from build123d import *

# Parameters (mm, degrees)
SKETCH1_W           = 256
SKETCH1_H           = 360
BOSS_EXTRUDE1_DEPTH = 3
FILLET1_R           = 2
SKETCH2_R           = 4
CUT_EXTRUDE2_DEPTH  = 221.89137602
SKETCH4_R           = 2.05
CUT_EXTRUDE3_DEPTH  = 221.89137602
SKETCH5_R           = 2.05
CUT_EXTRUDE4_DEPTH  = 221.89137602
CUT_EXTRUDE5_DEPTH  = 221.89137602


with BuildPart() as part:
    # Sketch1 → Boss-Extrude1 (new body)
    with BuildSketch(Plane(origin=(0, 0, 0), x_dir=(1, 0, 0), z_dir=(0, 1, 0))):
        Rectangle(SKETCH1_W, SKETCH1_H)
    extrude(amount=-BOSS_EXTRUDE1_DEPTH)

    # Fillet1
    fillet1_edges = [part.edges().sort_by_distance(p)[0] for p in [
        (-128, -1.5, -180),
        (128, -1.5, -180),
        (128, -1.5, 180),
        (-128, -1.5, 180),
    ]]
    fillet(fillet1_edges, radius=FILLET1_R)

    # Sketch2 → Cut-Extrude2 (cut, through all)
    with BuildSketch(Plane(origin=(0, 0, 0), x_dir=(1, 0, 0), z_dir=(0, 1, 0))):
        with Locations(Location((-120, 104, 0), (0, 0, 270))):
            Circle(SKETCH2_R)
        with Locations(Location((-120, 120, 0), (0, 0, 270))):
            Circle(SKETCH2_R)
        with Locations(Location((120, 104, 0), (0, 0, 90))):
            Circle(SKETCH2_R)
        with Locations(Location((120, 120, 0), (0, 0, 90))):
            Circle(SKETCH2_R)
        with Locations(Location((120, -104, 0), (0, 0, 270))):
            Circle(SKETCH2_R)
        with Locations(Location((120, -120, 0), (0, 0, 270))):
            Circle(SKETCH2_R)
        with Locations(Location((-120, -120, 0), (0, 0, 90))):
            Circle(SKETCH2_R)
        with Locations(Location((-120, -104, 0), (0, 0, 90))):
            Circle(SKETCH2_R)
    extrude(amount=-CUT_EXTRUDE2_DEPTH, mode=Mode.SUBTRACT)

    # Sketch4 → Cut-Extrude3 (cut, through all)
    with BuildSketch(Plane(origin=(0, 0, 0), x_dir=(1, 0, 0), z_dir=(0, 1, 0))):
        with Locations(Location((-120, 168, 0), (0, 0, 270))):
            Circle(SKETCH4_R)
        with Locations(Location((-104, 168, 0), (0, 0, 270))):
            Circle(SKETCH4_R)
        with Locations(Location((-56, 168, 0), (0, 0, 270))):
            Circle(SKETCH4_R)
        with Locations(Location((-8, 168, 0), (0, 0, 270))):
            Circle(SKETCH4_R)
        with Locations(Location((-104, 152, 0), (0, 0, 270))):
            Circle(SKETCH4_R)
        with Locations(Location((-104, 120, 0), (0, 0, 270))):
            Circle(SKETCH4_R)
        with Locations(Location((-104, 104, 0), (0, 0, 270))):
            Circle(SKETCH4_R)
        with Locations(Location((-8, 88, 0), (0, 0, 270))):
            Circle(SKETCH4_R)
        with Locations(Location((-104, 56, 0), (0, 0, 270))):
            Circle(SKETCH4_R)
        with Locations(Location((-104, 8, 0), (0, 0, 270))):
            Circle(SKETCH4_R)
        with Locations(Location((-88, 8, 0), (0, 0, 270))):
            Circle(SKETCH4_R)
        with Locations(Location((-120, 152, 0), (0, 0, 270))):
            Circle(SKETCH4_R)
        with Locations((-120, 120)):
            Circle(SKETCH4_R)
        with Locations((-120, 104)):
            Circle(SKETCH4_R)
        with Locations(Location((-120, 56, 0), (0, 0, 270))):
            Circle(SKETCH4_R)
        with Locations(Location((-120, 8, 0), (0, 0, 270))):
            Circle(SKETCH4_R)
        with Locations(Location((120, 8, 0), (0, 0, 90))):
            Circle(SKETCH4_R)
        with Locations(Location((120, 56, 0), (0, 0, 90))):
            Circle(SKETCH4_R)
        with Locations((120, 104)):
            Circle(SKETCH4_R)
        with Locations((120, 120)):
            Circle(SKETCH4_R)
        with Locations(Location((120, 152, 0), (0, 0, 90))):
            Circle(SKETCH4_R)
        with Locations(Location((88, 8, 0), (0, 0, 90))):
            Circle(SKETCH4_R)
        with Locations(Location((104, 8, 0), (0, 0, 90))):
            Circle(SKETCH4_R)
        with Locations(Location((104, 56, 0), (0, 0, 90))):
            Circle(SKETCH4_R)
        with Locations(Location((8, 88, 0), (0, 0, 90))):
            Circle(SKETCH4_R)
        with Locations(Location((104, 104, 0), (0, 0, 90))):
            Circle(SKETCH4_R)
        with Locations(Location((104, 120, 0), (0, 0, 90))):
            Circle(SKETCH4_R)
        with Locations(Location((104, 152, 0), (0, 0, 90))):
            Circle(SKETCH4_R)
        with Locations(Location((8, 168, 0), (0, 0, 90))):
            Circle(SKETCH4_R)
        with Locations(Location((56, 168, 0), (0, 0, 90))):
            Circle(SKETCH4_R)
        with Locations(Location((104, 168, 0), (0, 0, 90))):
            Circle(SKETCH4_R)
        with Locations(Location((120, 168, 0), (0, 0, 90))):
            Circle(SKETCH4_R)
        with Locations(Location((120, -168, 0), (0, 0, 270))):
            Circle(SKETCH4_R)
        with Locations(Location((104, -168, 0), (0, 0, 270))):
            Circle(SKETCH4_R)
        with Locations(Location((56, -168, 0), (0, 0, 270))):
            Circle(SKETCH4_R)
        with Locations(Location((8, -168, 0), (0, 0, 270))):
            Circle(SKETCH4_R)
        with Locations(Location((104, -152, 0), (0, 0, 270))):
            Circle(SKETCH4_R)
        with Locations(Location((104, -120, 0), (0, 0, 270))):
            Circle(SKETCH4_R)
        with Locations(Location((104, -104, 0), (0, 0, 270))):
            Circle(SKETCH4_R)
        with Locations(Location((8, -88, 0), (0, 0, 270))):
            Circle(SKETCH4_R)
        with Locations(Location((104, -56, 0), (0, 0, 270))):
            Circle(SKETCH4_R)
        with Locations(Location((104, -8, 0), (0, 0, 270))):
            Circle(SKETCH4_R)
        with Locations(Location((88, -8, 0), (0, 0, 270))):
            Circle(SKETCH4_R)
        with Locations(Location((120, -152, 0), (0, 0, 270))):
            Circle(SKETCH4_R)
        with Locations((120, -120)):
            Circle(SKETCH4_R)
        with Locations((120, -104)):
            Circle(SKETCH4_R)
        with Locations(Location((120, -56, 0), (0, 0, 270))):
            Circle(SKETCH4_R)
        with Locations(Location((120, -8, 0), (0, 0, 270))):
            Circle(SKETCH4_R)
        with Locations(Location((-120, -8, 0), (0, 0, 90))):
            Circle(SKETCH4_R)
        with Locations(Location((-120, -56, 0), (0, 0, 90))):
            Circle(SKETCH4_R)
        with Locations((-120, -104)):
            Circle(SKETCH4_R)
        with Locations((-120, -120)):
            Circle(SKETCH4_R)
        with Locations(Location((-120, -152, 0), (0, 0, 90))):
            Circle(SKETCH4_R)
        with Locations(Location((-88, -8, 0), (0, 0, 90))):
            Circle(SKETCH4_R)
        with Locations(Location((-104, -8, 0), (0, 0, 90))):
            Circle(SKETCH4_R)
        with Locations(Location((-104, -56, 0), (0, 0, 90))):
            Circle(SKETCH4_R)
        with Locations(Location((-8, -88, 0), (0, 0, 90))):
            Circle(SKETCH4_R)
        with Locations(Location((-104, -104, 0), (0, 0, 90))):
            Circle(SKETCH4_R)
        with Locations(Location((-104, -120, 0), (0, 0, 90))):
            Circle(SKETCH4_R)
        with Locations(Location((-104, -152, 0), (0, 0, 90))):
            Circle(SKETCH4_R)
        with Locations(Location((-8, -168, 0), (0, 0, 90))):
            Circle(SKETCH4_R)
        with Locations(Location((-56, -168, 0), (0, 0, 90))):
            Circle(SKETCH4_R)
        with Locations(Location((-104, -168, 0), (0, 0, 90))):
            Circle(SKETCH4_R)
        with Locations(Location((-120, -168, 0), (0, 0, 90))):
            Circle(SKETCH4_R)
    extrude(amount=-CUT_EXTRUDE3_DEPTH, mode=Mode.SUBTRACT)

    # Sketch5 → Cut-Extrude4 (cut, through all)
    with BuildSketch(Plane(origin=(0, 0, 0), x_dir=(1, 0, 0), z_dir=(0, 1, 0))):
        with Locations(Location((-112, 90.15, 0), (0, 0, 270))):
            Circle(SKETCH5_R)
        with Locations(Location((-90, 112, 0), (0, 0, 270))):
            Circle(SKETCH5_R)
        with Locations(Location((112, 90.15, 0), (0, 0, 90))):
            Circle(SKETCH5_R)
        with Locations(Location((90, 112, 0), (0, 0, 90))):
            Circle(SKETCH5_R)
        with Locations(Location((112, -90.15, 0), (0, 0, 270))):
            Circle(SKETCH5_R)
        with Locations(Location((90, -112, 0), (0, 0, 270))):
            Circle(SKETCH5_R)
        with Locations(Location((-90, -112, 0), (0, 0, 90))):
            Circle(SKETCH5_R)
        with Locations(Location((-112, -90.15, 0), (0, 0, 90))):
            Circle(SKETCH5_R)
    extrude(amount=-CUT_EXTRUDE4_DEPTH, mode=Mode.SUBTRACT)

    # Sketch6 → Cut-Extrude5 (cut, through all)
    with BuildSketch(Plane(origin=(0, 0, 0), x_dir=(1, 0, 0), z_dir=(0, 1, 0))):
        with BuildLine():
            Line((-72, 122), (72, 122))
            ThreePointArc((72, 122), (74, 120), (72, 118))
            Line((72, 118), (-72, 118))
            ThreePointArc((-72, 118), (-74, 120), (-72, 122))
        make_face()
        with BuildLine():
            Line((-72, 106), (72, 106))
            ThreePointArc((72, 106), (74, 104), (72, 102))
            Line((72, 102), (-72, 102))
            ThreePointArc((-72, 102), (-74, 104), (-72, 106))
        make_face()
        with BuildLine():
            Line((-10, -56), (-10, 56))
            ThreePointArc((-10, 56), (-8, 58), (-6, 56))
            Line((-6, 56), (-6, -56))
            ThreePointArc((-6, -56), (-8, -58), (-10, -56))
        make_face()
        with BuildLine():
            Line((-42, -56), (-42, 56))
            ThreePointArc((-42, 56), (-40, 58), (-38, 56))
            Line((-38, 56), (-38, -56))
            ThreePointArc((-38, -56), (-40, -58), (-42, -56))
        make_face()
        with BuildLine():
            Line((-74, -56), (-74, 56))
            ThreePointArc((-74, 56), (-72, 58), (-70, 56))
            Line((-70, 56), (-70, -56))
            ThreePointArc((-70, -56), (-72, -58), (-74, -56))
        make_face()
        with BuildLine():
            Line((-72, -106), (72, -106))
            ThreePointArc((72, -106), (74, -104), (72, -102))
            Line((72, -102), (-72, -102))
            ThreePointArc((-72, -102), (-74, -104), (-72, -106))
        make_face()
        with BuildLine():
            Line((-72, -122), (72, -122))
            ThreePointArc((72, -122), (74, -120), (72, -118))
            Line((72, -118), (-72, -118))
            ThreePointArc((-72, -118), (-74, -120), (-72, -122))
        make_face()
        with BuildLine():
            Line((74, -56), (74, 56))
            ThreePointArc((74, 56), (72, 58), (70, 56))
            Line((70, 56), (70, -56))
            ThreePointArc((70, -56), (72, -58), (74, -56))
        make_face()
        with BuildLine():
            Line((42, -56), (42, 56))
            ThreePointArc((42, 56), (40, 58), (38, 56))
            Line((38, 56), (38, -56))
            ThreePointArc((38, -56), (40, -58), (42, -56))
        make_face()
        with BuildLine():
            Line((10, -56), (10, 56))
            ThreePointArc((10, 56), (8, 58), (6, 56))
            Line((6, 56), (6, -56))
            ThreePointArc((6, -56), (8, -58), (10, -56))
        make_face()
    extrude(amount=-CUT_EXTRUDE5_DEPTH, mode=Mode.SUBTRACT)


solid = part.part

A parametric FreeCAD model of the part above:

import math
import FreeCAD as App
import Part
import Sketcher

V = App.Vector


def edges_at(feature, points):
    """Names of the edges that pass closest to the given points."""
    edges = feature.Shape.Edges
    near = lambda p: min(range(len(edges)), key=lambda i: edges[i].distToShape(Part.Vertex(*p))[0])
    return sorted({f"Edge{near(p) + 1}" for p in points})


def add_polygon(sketch, points):
    """Adds a closed chain of lines whose ends are joined by coincident constraints."""
    first, n = sketch.GeometryCount, len(points)
    for a, b in zip(points, points[1:] + points[:1]):
        sketch.addGeometry(Part.LineSegment(App.Vector(*a, 0), App.Vector(*b, 0)), False)
    for i in range(n):
        sketch.addConstraint(Sketcher.Constraint("Coincident", first + i, 2, first + (i + 1) % n, 1))

doc = App.newDocument("Part")
params = doc.addObject("Spreadsheet::Sheet", "Params")
for row, (alias, value) in enumerate([
    ("sketch1_width", "256 mm"),
    ("sketch1_height", "360 mm"),
    ("pad1_length", "3 mm"),
    ("fillet_radius", "2 mm"),
    ("sketch2_diameter", "8 mm"),
    ("sketch3_diameter", "4.1 mm"),
    ("sketch4_diameter", "4.1 mm"),
    ("sketch5_radius", "2 mm"),
    ("sketch5_width", "144 mm"),
    ("sketch5_height", "112 mm"),
], start=1):
    params.set(f"A{row}", alias)
    params.set(f"B{row}", "=" + value)
    params.setAlias(f"B{row}", alias)

body = doc.addObject("PartDesign::Body", "Body")

# Sketch on XZ plane
sketch1 = body.newObject("Sketcher::SketchObject", "Sketch")
sketch1.AttachmentSupport = (doc.getObject("XZ_Plane"), [""])
sketch1.MapMode = "FlatFace"
add_polygon(sketch1, [(-128, -180), (-128, 180), (128, 180), (128, -180)])  # lines 0-3
sketch1.addConstraint([
    Sketcher.Constraint("Vertical", 0),
    Sketcher.Constraint("Horizontal", 1),
    Sketcher.Constraint("Vertical", 2),
    Sketcher.Constraint("Horizontal", 3),
    Sketcher.Constraint("Symmetric", 0, 2, 2, 2, -1, 1),
    Sketcher.Constraint("DistanceX", 1, 1, 1, 2, 256.0),
    Sketcher.Constraint("DistanceY", 0, 1, 0, 2, 360.0),
])
sketch1.setExpression("Constraints[9]", "Params.sketch1_width")
sketch1.setExpression("Constraints[10]", "Params.sketch1_height")
pad1 = body.newObject("PartDesign::Pad", "Pad")
pad1.Profile = sketch1
pad1.setExpression("Length", "Params.pad1_length")
doc.recompute()

fillet = body.newObject("PartDesign::Fillet", "Fillet")
fillet.Base = (pad1, edges_at(pad1, [
    (-128, -1.5, -180),
    (128, -1.5, -180),
    (128, -1.5, 180),
    (-128, -1.5, 180),
]))
fillet.setExpression("Radius", "Params.fillet_radius")

# Sketch on XZ plane
sketch2 = body.newObject("Sketcher::SketchObject", "Sketch001")
sketch2.AttachmentSupport = (doc.getObject("XZ_Plane"), [""])
sketch2.MapMode = "FlatFace"
sketch2.addGeometry([
    Part.Circle(V(-120, -104, 0), V(0, 0, 1), 4),  # 0
    Part.Circle(V(-120, -120, 0), V(0, 0, 1), 4),  # 1
    Part.Circle(V(120, -104, 0), V(0, 0, 1), 4),  # 2
    Part.Circle(V(120, -120, 0), V(0, 0, 1), 4),  # 3
    Part.Circle(V(120, 104, 0), V(0, 0, 1), 4),  # 4
    Part.Circle(V(120, 120, 0), V(0, 0, 1), 4),  # 5
    Part.Circle(V(-120, 120, 0), V(0, 0, 1), 4),  # 6
    Part.Circle(V(-120, 104, 0), V(0, 0, 1), 4),  # 7
], False)
sketch2.addConstraint([
    Sketcher.Constraint("Equal", 0, 1),
    Sketcher.Constraint("Equal", 1, 2),
    Sketcher.Constraint("Equal", 2, 3),
    Sketcher.Constraint("Equal", 3, 4),
    Sketcher.Constraint("Equal", 4, 5),
    Sketcher.Constraint("Equal", 5, 6),
    Sketcher.Constraint("Equal", 6, 7),
    Sketcher.Constraint("Symmetric", 0, 3, 4, 3, -1, 1),
    Sketcher.Constraint("Symmetric", 1, 3, 5, 3, -1, 1),
    Sketcher.Constraint("Symmetric", 3, 3, 6, 3, -1, 1),
    Sketcher.Constraint("Symmetric", 2, 3, 7, 3, -1, 1),
    Sketcher.Constraint("Symmetric", 0, 3, 2, 3, -2),
    Sketcher.Constraint("Symmetric", 1, 3, 3, 3, -2),
    Sketcher.Constraint("Vertical", 0, 3, 1, 3),
    Sketcher.Constraint("Diameter", 0, 8.0),
    Sketcher.Constraint("DistanceX", 0, 3, -1, 1, 120.0),
    Sketcher.Constraint("DistanceY", 0, 3, -1, 1, 104.0),
    Sketcher.Constraint("DistanceY", 1, 3, -1, 1, 120.0),
])
sketch2.setExpression("Constraints[14]", "Params.sketch2_diameter")
pocket1 = body.newObject("PartDesign::Pocket", "Pocket")
pocket1.Profile = sketch2
pocket1.Type = "ThroughAll"
pocket1.Reversed = True

# Sketch on XZ plane
sketch3 = body.newObject("Sketcher::SketchObject", "Sketch002")
sketch3.AttachmentSupport = (doc.getObject("XZ_Plane"), [""])
sketch3.MapMode = "FlatFace"
sketch3.addGeometry([
    Part.Circle(V(-120, -168, 0), V(0, 0, 1), 2.05),  # 0
    Part.Circle(V(-104, -168, 0), V(0, 0, 1), 2.05),  # 1
    Part.Circle(V(-56, -168, 0), V(0, 0, 1), 2.05),  # 2
    Part.Circle(V(-8, -168, 0), V(0, 0, 1), 2.05),  # 3
    Part.Circle(V(-104, -152, 0), V(0, 0, 1), 2.05),  # 4
    Part.Circle(V(-104, -120, 0), V(0, 0, 1), 2.05),  # 5
    Part.Circle(V(-104, -104, 0), V(0, 0, 1), 2.05),  # 6
    Part.Circle(V(-8, -88, 0), V(0, 0, 1), 2.05),  # 7
    Part.Circle(V(-104, -56, 0), V(0, 0, 1), 2.05),  # 8
    Part.Circle(V(-104, -8, 0), V(0, 0, 1), 2.05),  # 9
    Part.Circle(V(-88, -8, 0), V(0, 0, 1), 2.05),  # 10
    Part.Circle(V(-120, -152, 0), V(0, 0, 1), 2.05),  # 11
    Part.Circle(V(-120, -120, 0), V(0, 0, 1), 2.05),  # 12
    Part.Circle(V(-120, -104, 0), V(0, 0, 1), 2.05),  # 13
    Part.Circle(V(-120, -56, 0), V(0, 0, 1), 2.05),  # 14
    Part.Circle(V(-120, -8, 0), V(0, 0, 1), 2.05),  # 15
    Part.Circle(V(120, -8, 0), V(0, 0, 1), 2.05),  # 16
    Part.Circle(V(120, -56, 0), V(0, 0, 1), 2.05),  # 17
    Part.Circle(V(120, -104, 0), V(0, 0, 1), 2.05),  # 18
    Part.Circle(V(120, -120, 0), V(0, 0, 1), 2.05),  # 19
    Part.Circle(V(120, -152, 0), V(0, 0, 1), 2.05),  # 20
    Part.Circle(V(88, -8, 0), V(0, 0, 1), 2.05),  # 21
    Part.Circle(V(104, -8, 0), V(0, 0, 1), 2.05),  # 22
    Part.Circle(V(104, -56, 0), V(0, 0, 1), 2.05),  # 23
    Part.Circle(V(8, -88, 0), V(0, 0, 1), 2.05),  # 24
    Part.Circle(V(104, -104, 0), V(0, 0, 1), 2.05),  # 25
    Part.Circle(V(104, -120, 0), V(0, 0, 1), 2.05),  # 26
    Part.Circle(V(104, -152, 0), V(0, 0, 1), 2.05),  # 27
    Part.Circle(V(8, -168, 0), V(0, 0, 1), 2.05),  # 28
    Part.Circle(V(56, -168, 0), V(0, 0, 1), 2.05),  # 29
    Part.Circle(V(104, -168, 0), V(0, 0, 1), 2.05),  # 30
    Part.Circle(V(120, -168, 0), V(0, 0, 1), 2.05),  # 31
    Part.Circle(V(120, 168, 0), V(0, 0, 1), 2.05),  # 32
    Part.Circle(V(104, 168, 0), V(0, 0, 1), 2.05),  # 33
    Part.Circle(V(56, 168, 0), V(0, 0, 1), 2.05),  # 34
    Part.Circle(V(8, 168, 0), V(0, 0, 1), 2.05),  # 35
    Part.Circle(V(104, 152, 0), V(0, 0, 1), 2.05),  # 36
    Part.Circle(V(104, 120, 0), V(0, 0, 1), 2.05),  # 37
    Part.Circle(V(104, 104, 0), V(0, 0, 1), 2.05),  # 38
    Part.Circle(V(8, 88, 0), V(0, 0, 1), 2.05),  # 39
    Part.Circle(V(104, 56, 0), V(0, 0, 1), 2.05),  # 40
    Part.Circle(V(104, 8, 0), V(0, 0, 1), 2.05),  # 41
    Part.Circle(V(88, 8, 0), V(0, 0, 1), 2.05),  # 42
    Part.Circle(V(120, 152, 0), V(0, 0, 1), 2.05),  # 43
    Part.Circle(V(120, 120, 0), V(0, 0, 1), 2.05),  # 44
    Part.Circle(V(120, 104, 0), V(0, 0, 1), 2.05),  # 45
    Part.Circle(V(120, 56, 0), V(0, 0, 1), 2.05),  # 46
    Part.Circle(V(120, 8, 0), V(0, 0, 1), 2.05),  # 47
    Part.Circle(V(-120, 8, 0), V(0, 0, 1), 2.05),  # 48
    Part.Circle(V(-120, 56, 0), V(0, 0, 1), 2.05),  # 49
    Part.Circle(V(-120, 104, 0), V(0, 0, 1), 2.05),  # 50
    Part.Circle(V(-120, 120, 0), V(0, 0, 1), 2.05),  # 51
    Part.Circle(V(-120, 152, 0), V(0, 0, 1), 2.05),  # 52
    Part.Circle(V(-88, 8, 0), V(0, 0, 1), 2.05),  # 53
    Part.Circle(V(-104, 8, 0), V(0, 0, 1), 2.05),  # 54
    Part.Circle(V(-104, 56, 0), V(0, 0, 1), 2.05),  # 55
    Part.Circle(V(-8, 88, 0), V(0, 0, 1), 2.05),  # 56
    Part.Circle(V(-104, 104, 0), V(0, 0, 1), 2.05),  # 57
    Part.Circle(V(-104, 120, 0), V(0, 0, 1), 2.05),  # 58
    Part.Circle(V(-104, 152, 0), V(0, 0, 1), 2.05),  # 59
    Part.Circle(V(-8, 168, 0), V(0, 0, 1), 2.05),  # 60
    Part.Circle(V(-56, 168, 0), V(0, 0, 1), 2.05),  # 61
    Part.Circle(V(-104, 168, 0), V(0, 0, 1), 2.05),  # 62
    Part.Circle(V(-120, 168, 0), V(0, 0, 1), 2.05),  # 63
], False)
sketch3.addConstraint([
    Sketcher.Constraint("Equal", 0, 1),
    Sketcher.Constraint("Equal", 1, 2),
    Sketcher.Constraint("Equal", 2, 3),
    Sketcher.Constraint("Equal", 3, 4),
    Sketcher.Constraint("Equal", 4, 5),
    Sketcher.Constraint("Equal", 5, 6),
    Sketcher.Constraint("Equal", 6, 7),
    Sketcher.Constraint("Equal", 7, 8),
    Sketcher.Constraint("Equal", 8, 9),
    Sketcher.Constraint("Equal", 9, 10),
    Sketcher.Constraint("Equal", 10, 11),
    Sketcher.Constraint("Equal", 11, 12),
    Sketcher.Constraint("Equal", 12, 13),
    Sketcher.Constraint("Equal", 13, 14),
    Sketcher.Constraint("Equal", 14, 15),
    Sketcher.Constraint("Equal", 15, 16),
    Sketcher.Constraint("Equal", 16, 17),
    Sketcher.Constraint("Equal", 17, 18),
    Sketcher.Constraint("Equal", 18, 19),
    Sketcher.Constraint("Equal", 19, 20),
    Sketcher.Constraint("Equal", 20, 21),
    Sketcher.Constraint("Equal", 21, 22),
    Sketcher.Constraint("Equal", 22, 23),
    Sketcher.Constraint("Equal", 23, 24),
    Sketcher.Constraint("Equal", 24, 25),
    Sketcher.Constraint("Equal", 25, 26),
    Sketcher.Constraint("Equal", 26, 27),
    Sketcher.Constraint("Equal", 27, 28),
    Sketcher.Constraint("Equal", 28, 29),
    Sketcher.Constraint("Equal", 29, 30),
    Sketcher.Constraint("Equal", 30, 31),
    Sketcher.Constraint("Equal", 31, 32),
    Sketcher.Constraint("Equal", 32, 33),
    Sketcher.Constraint("Equal", 33, 34),
    Sketcher.Constraint("Equal", 34, 35),
    Sketcher.Constraint("Equal", 35, 36),
    Sketcher.Constraint("Equal", 36, 37),
    Sketcher.Constraint("Equal", 37, 38),
    Sketcher.Constraint("Equal", 38, 39),
    Sketcher.Constraint("Equal", 39, 40),
    Sketcher.Constraint("Equal", 40, 41),
    Sketcher.Constraint("Equal", 41, 42),
    Sketcher.Constraint("Equal", 42, 43),
    Sketcher.Constraint("Equal", 43, 44),
    Sketcher.Constraint("Equal", 44, 45),
    Sketcher.Constraint("Equal", 45, 46),
    Sketcher.Constraint("Equal", 46, 47),
    Sketcher.Constraint("Equal", 47, 48),
    Sketcher.Constraint("Equal", 48, 49),
    Sketcher.Constraint("Equal", 49, 50),
    Sketcher.Constraint("Equal", 50, 51),
    Sketcher.Constraint("Equal", 51, 52),
    Sketcher.Constraint("Equal", 52, 53),
    Sketcher.Constraint("Equal", 53, 54),
    Sketcher.Constraint("Equal", 54, 55),
    Sketcher.Constraint("Equal", 55, 56),
    Sketcher.Constraint("Equal", 56, 57),
    Sketcher.Constraint("Equal", 57, 58),
    Sketcher.Constraint("Equal", 58, 59),
    Sketcher.Constraint("Equal", 59, 60),
    Sketcher.Constraint("Equal", 60, 61),
    Sketcher.Constraint("Equal", 61, 62),
    Sketcher.Constraint("Equal", 62, 63),
    Sketcher.Constraint("Symmetric", 0, 3, 32, 3, -1, 1),
    Sketcher.Constraint("Symmetric", 1, 3, 33, 3, -1, 1),
    Sketcher.Constraint("Symmetric", 2, 3, 34, 3, -1, 1),
    Sketcher.Constraint("Symmetric", 3, 3, 35, 3, -1, 1),
    Sketcher.Constraint("Symmetric", 4, 3, 36, 3, -1, 1),
    Sketcher.Constraint("Symmetric", 5, 3, 37, 3, -1, 1),
    Sketcher.Constraint("Symmetric", 6, 3, 38, 3, -1, 1),
    Sketcher.Constraint("Symmetric", 7, 3, 39, 3, -1, 1),
    Sketcher.Constraint("Symmetric", 8, 3, 40, 3, -1, 1),
    Sketcher.Constraint("Symmetric", 9, 3, 41, 3, -1, 1),
    Sketcher.Constraint("Symmetric", 10, 3, 42, 3, -1, 1),
    Sketcher.Constraint("Symmetric", 11, 3, 43, 3, -1, 1),
    Sketcher.Constraint("Symmetric", 12, 3, 44, 3, -1, 1),
    Sketcher.Constraint("Symmetric", 13, 3, 45, 3, -1, 1),
    Sketcher.Constraint("Symmetric", 14, 3, 46, 3, -1, 1),
    Sketcher.Constraint("Symmetric", 15, 3, 47, 3, -1, 1),
    Sketcher.Constraint("Symmetric", 16, 3, 48, 3, -1, 1),
    Sketcher.Constraint("Symmetric", 17, 3, 49, 3, -1, 1),
    Sketcher.Constraint("Symmetric", 18, 3, 50, 3, -1, 1),
    Sketcher.Constraint("Symmetric", 19, 3, 51, 3, -1, 1),
    Sketcher.Constraint("Symmetric", 20, 3, 52, 3, -1, 1),
    Sketcher.Constraint("Symmetric", 21, 3, 53, 3, -1, 1),
    Sketcher.Constraint("Symmetric", 22, 3, 54, 3, -1, 1),
    Sketcher.Constraint("Symmetric", 23, 3, 55, 3, -1, 1),
    Sketcher.Constraint("Symmetric", 24, 3, 56, 3, -1, 1),
    Sketcher.Constraint("Symmetric", 25, 3, 57, 3, -1, 1),
    Sketcher.Constraint("Symmetric", 26, 3, 58, 3, -1, 1),
    Sketcher.Constraint("Symmetric", 27, 3, 59, 3, -1, 1),
    Sketcher.Constraint("Symmetric", 28, 3, 60, 3, -1, 1),
    Sketcher.Constraint("Symmetric", 29, 3, 61, 3, -1, 1),
    Sketcher.Constraint("Symmetric", 30, 3, 62, 3, -1, 1),
    Sketcher.Constraint("Symmetric", 31, 3, 63, 3, -1, 1),
    Sketcher.Constraint("Symmetric", 15, 3, 16, 3, -2),
    Sketcher.Constraint("Symmetric", 14, 3, 17, 3, -2),
    Sketcher.Constraint("Symmetric", 13, 3, 18, 3, -2),
    Sketcher.Constraint("Symmetric", 12, 3, 19, 3, -2),
    Sketcher.Constraint("Symmetric", 11, 3, 20, 3, -2),
    Sketcher.Constraint("Symmetric", 10, 3, 21, 3, -2),
    Sketcher.Constraint("Symmetric", 9, 3, 22, 3, -2),
    Sketcher.Constraint("Symmetric", 8, 3, 23, 3, -2),
    Sketcher.Constraint("Symmetric", 7, 3, 24, 3, -2),
    Sketcher.Constraint("Symmetric", 6, 3, 25, 3, -2),
    Sketcher.Constraint("Symmetric", 5, 3, 26, 3, -2),
    Sketcher.Constraint("Symmetric", 4, 3, 27, 3, -2),
    Sketcher.Constraint("Symmetric", 3, 3, 28, 3, -2),
    Sketcher.Constraint("Symmetric", 2, 3, 29, 3, -2),
    Sketcher.Constraint("Symmetric", 1, 3, 30, 3, -2),
    Sketcher.Constraint("Symmetric", 0, 3, 31, 3, -2),
    Sketcher.Constraint("Horizontal", 0, 3, 1, 3),
    Sketcher.Constraint("Horizontal", 1, 3, 2, 3),
    Sketcher.Constraint("Horizontal", 2, 3, 3, 3),
    Sketcher.Constraint("Horizontal", 9, 3, 10, 3),
    Sketcher.Constraint("Horizontal", 4, 3, 11, 3),
    Sketcher.Constraint("Horizontal", 5, 3, 12, 3),
    Sketcher.Constraint("Horizontal", 6, 3, 13, 3),
    Sketcher.Constraint("Horizontal", 8, 3, 14, 3),
    Sketcher.Constraint("Horizontal", 10, 3, 15, 3),
    Sketcher.Constraint("Vertical", 1, 3, 4, 3),
    Sketcher.Constraint("Vertical", 4, 3, 5, 3),
    Sketcher.Constraint("Vertical", 5, 3, 6, 3),
    Sketcher.Constraint("Vertical", 3, 3, 7, 3),
    Sketcher.Constraint("Vertical", 6, 3, 8, 3),
    Sketcher.Constraint("Vertical", 8, 3, 9, 3),
    Sketcher.Constraint("Vertical", 0, 3, 11, 3),
    Sketcher.Constraint("Vertical", 11, 3, 12, 3),
    Sketcher.Constraint("Vertical", 12, 3, 13, 3),
    Sketcher.Constraint("Vertical", 13, 3, 14, 3),
    Sketcher.Constraint("Vertical", 14, 3, 15, 3),
    Sketcher.Constraint("Diameter", 0, 4.1),
    Sketcher.Constraint("DistanceX", 0, 3, -1, 1, 120.0),
    Sketcher.Constraint("DistanceY", 0, 3, -1, 1, 168.0),
    Sketcher.Constraint("DistanceX", 1, 3, -1, 1, 104.0),
    Sketcher.Constraint("DistanceX", 2, 3, -1, 1, 56.0),
    Sketcher.Constraint("DistanceX", 3, 3, -1, 1, 8.0),
    Sketcher.Constraint("DistanceY", 4, 3, -1, 1, 152.0),
    Sketcher.Constraint("DistanceY", 5, 3, -1, 1, 120.0),
    Sketcher.Constraint("DistanceY", 6, 3, -1, 1, 104.0),
    Sketcher.Constraint("DistanceY", 7, 3, -1, 1, 88.0),
    Sketcher.Constraint("DistanceY", 8, 3, -1, 1, 56.0),
    Sketcher.Constraint("DistanceY", 9, 3, -1, 1, 8.0),
    Sketcher.Constraint("DistanceX", 10, 3, -1, 1, 88.0),
])
sketch3.setExpression("Constraints[131]", "Params.sketch3_diameter")
pocket2 = body.newObject("PartDesign::Pocket", "Pocket001")
pocket2.Profile = sketch3
pocket2.Type = "ThroughAll"
pocket2.Reversed = True

# Sketch on XZ plane
sketch4 = body.newObject("Sketcher::SketchObject", "Sketch003")
sketch4.AttachmentSupport = (doc.getObject("XZ_Plane"), [""])
sketch4.MapMode = "FlatFace"
sketch4.addGeometry([
    Part.Circle(V(-112, -90.15, 0), V(0, 0, 1), 2.05),  # 0
    Part.Circle(V(-90, -112, 0), V(0, 0, 1), 2.05),  # 1
    Part.Circle(V(112, -90.15, 0), V(0, 0, 1), 2.05),  # 2
    Part.Circle(V(90, -112, 0), V(0, 0, 1), 2.05),  # 3
    Part.Circle(V(112, 90.15, 0), V(0, 0, 1), 2.05),  # 4
    Part.Circle(V(90, 112, 0), V(0, 0, 1), 2.05),  # 5
    Part.Circle(V(-90, 112, 0), V(0, 0, 1), 2.05),  # 6
    Part.Circle(V(-112, 90.15, 0), V(0, 0, 1), 2.05),  # 7
], False)
sketch4.addConstraint([
    Sketcher.Constraint("Equal", 0, 1),
    Sketcher.Constraint("Equal", 1, 2),
    Sketcher.Constraint("Equal", 2, 3),
    Sketcher.Constraint("Equal", 3, 4),
    Sketcher.Constraint("Equal", 4, 5),
    Sketcher.Constraint("Equal", 5, 6),
    Sketcher.Constraint("Equal", 6, 7),
    Sketcher.Constraint("Symmetric", 0, 3, 4, 3, -1, 1),
    Sketcher.Constraint("Symmetric", 1, 3, 5, 3, -1, 1),
    Sketcher.Constraint("Symmetric", 3, 3, 6, 3, -1, 1),
    Sketcher.Constraint("Symmetric", 2, 3, 7, 3, -1, 1),
    Sketcher.Constraint("Symmetric", 0, 3, 2, 3, -2),
    Sketcher.Constraint("Symmetric", 1, 3, 3, 3, -2),
    Sketcher.Constraint("Diameter", 0, 4.1),
    Sketcher.Constraint("DistanceX", 0, 3, -1, 1, 112.0),
    Sketcher.Constraint("DistanceX", 1, 3, -1, 1, 90.0),
    Sketcher.Constraint("DistanceY", 1, 3, -1, 1, 112.0),
    Sketcher.Constraint("DistanceY", 2, 3, 4, 3, 180.3),
])
sketch4.setExpression("Constraints[13]", "Params.sketch4_diameter")
pocket3 = body.newObject("PartDesign::Pocket", "Pocket002")
pocket3.Profile = sketch4
pocket3.Type = "ThroughAll"
pocket3.Reversed = True

# Sketch on XZ plane
sketch5 = body.newObject("Sketcher::SketchObject", "Sketch004")
sketch5.AttachmentSupport = (doc.getObject("XZ_Plane"), [""])
sketch5.MapMode = "FlatFace"
sketch5.addGeometry([
    Part.LineSegment(V(72, -122, 0), V(-72, -122, 0)),  # 0
    Part.ArcOfCircle(Part.Circle(V(-72, -120, 0), V(0, 0, 1), 2), math.radians(90), math.radians(270)),  # 1
    Part.LineSegment(V(-72, -118, 0), V(72, -118, 0)),  # 2
    Part.ArcOfCircle(Part.Circle(V(72, -120, 0), V(0, 0, 1), 2), math.radians(-90), math.radians(90)),  # 3
    Part.LineSegment(V(72, -106, 0), V(-72, -106, 0)),  # 4
    Part.ArcOfCircle(Part.Circle(V(-72, -104, 0), V(0, 0, 1), 2), math.radians(90), math.radians(270)),  # 5
    Part.LineSegment(V(-72, -102, 0), V(72, -102, 0)),  # 6
    Part.ArcOfCircle(Part.Circle(V(72, -104, 0), V(0, 0, 1), 2), math.radians(-90), math.radians(90)),  # 7
    Part.LineSegment(V(-10, -56, 0), V(-10, 56, 0)),  # 8
    Part.ArcOfCircle(Part.Circle(V(-8, 56, 0), V(0, 0, 1), 2), math.radians(0), math.radians(180)),  # 9
    Part.LineSegment(V(-6, 56, 0), V(-6, -56, 0)),  # 10
    Part.ArcOfCircle(Part.Circle(V(-8, -56, 0), V(0, 0, 1), 2), math.radians(180), math.radians(360)),  # 11
    Part.LineSegment(V(-42, -56, 0), V(-42, 56, 0)),  # 12
    Part.ArcOfCircle(Part.Circle(V(-40, 56, 0), V(0, 0, 1), 2), math.radians(0), math.radians(180)),  # 13
    Part.LineSegment(V(-38, 56, 0), V(-38, -56, 0)),  # 14
    Part.ArcOfCircle(Part.Circle(V(-40, -56, 0), V(0, 0, 1), 2), math.radians(180), math.radians(360)),  # 15
    Part.LineSegment(V(-74, -56, 0), V(-74, 56, 0)),  # 16
    Part.ArcOfCircle(Part.Circle(V(-72, 56, 0), V(0, 0, 1), 2), math.radians(0), math.radians(180)),  # 17
    Part.LineSegment(V(-70, 56, 0), V(-70, -56, 0)),  # 18
    Part.ArcOfCircle(Part.Circle(V(-72, -56, 0), V(0, 0, 1), 2), math.radians(180), math.radians(360)),  # 19
    Part.LineSegment(V(-72, 106, 0), V(72, 106, 0)),  # 20
    Part.ArcOfCircle(Part.Circle(V(72, 104, 0), V(0, 0, 1), 2), math.radians(-90), math.radians(90)),  # 21
    Part.LineSegment(V(72, 102, 0), V(-72, 102, 0)),  # 22
    Part.ArcOfCircle(Part.Circle(V(-72, 104, 0), V(0, 0, 1), 2), math.radians(90), math.radians(270)),  # 23
    Part.LineSegment(V(-72, 122, 0), V(72, 122, 0)),  # 24
    Part.ArcOfCircle(Part.Circle(V(72, 120, 0), V(0, 0, 1), 2), math.radians(-90), math.radians(90)),  # 25
    Part.LineSegment(V(72, 118, 0), V(-72, 118, 0)),  # 26
    Part.ArcOfCircle(Part.Circle(V(-72, 120, 0), V(0, 0, 1), 2), math.radians(90), math.radians(270)),  # 27
    Part.LineSegment(V(74, 56, 0), V(74, -56, 0)),  # 28
    Part.ArcOfCircle(Part.Circle(V(72, -56, 0), V(0, 0, 1), 2), math.radians(180), math.radians(360)),  # 29
    Part.LineSegment(V(70, -56, 0), V(70, 56, 0)),  # 30
    Part.ArcOfCircle(Part.Circle(V(72, 56, 0), V(0, 0, 1), 2), math.radians(0), math.radians(180)),  # 31
    Part.LineSegment(V(42, 56, 0), V(42, -56, 0)),  # 32
    Part.ArcOfCircle(Part.Circle(V(40, -56, 0), V(0, 0, 1), 2), math.radians(180), math.radians(360)),  # 33
    Part.LineSegment(V(38, -56, 0), V(38, 56, 0)),  # 34
    Part.ArcOfCircle(Part.Circle(V(40, 56, 0), V(0, 0, 1), 2), math.radians(0), math.radians(180)),  # 35
    Part.LineSegment(V(10, 56, 0), V(10, -56, 0)),  # 36
    Part.ArcOfCircle(Part.Circle(V(8, -56, 0), V(0, 0, 1), 2), math.radians(180), math.radians(360)),  # 37
    Part.LineSegment(V(6, -56, 0), V(6, 56, 0)),  # 38
    Part.ArcOfCircle(Part.Circle(V(8, 56, 0), V(0, 0, 1), 2), math.radians(0), math.radians(180)),  # 39
], False)
sketch5.addConstraint([
    Sketcher.Constraint("Tangent", 0, 2, 1, 2),
    Sketcher.Constraint("Tangent", 1, 1, 2, 1),
    Sketcher.Constraint("Tangent", 2, 2, 3, 2),
    Sketcher.Constraint("Tangent", 3, 1, 0, 1),
    Sketcher.Constraint("Tangent", 4, 2, 5, 2),
    Sketcher.Constraint("Tangent", 5, 1, 6, 1),
    Sketcher.Constraint("Tangent", 6, 2, 7, 2),
    Sketcher.Constraint("Tangent", 7, 1, 4, 1),
    Sketcher.Constraint("Tangent", 8, 2, 9, 2),
    Sketcher.Constraint("Tangent", 9, 1, 10, 1),
    Sketcher.Constraint("Tangent", 10, 2, 11, 2),
    Sketcher.Constraint("Tangent", 11, 1, 8, 1),
    Sketcher.Constraint("Tangent", 12, 2, 13, 2),
    Sketcher.Constraint("Tangent", 13, 1, 14, 1),
    Sketcher.Constraint("Tangent", 14, 2, 15, 2),
    Sketcher.Constraint("Tangent", 15, 1, 12, 1),
    Sketcher.Constraint("Tangent", 16, 2, 17, 2),
    Sketcher.Constraint("Tangent", 17, 1, 18, 1),
    Sketcher.Constraint("Tangent", 18, 2, 19, 2),
    Sketcher.Constraint("Tangent", 19, 1, 16, 1),
    Sketcher.Constraint("Tangent", 20, 2, 21, 2),
    Sketcher.Constraint("Tangent", 21, 1, 22, 1),
    Sketcher.Constraint("Tangent", 22, 2, 23, 2),
    Sketcher.Constraint("Tangent", 23, 1, 20, 1),
    Sketcher.Constraint("Tangent", 24, 2, 25, 2),
    Sketcher.Constraint("Tangent", 25, 1, 26, 1),
    Sketcher.Constraint("Tangent", 26, 2, 27, 2),
    Sketcher.Constraint("Tangent", 27, 1, 24, 1),
    Sketcher.Constraint("Tangent", 28, 2, 29, 2),
    Sketcher.Constraint("Tangent", 29, 1, 30, 1),
    Sketcher.Constraint("Tangent", 30, 2, 31, 2),
    Sketcher.Constraint("Tangent", 31, 1, 28, 1),
    Sketcher.Constraint("Tangent", 32, 2, 33, 2),
    Sketcher.Constraint("Tangent", 33, 1, 34, 1),
    Sketcher.Constraint("Tangent", 34, 2, 35, 2),
    Sketcher.Constraint("Tangent", 35, 1, 32, 1),
    Sketcher.Constraint("Tangent", 36, 2, 37, 2),
    Sketcher.Constraint("Tangent", 37, 1, 38, 1),
    Sketcher.Constraint("Tangent", 38, 2, 39, 2),
    Sketcher.Constraint("Tangent", 39, 1, 36, 1),
    Sketcher.Constraint("Horizontal", 0),
    Sketcher.Constraint("Horizontal", 2),
    Sketcher.Constraint("Horizontal", 4),
    Sketcher.Constraint("Horizontal", 6),
    Sketcher.Constraint("Vertical", 8),
    Sketcher.Constraint("Vertical", 10),
    Sketcher.Constraint("Vertical", 12),
    Sketcher.Constraint("Vertical", 14),
    Sketcher.Constraint("Vertical", 16),
    Sketcher.Constraint("Vertical", 18),
    Sketcher.Constraint("Horizontal", 20),
    Sketcher.Constraint("Horizontal", 22),
    Sketcher.Constraint("Horizontal", 24),
    Sketcher.Constraint("Horizontal", 26),
    Sketcher.Constraint("Vertical", 28),
    Sketcher.Constraint("Vertical", 30),
    Sketcher.Constraint("Vertical", 32),
    Sketcher.Constraint("Vertical", 34),
    Sketcher.Constraint("Vertical", 36),
    Sketcher.Constraint("Vertical", 38),
    Sketcher.Constraint("Equal", 3, 5),
    Sketcher.Constraint("Equal", 7, 9),
    Sketcher.Constraint("Equal", 11, 13),
    Sketcher.Constraint("Equal", 15, 17),
    Sketcher.Constraint("Equal", 19, 21),
    Sketcher.Constraint("Equal", 23, 25),
    Sketcher.Constraint("Equal", 27, 29),
    Sketcher.Constraint("Equal", 31, 33),
    Sketcher.Constraint("Equal", 35, 37),
    Sketcher.Constraint("Symmetric", 5, 3, 21, 3, -1, 1),
    Sketcher.Constraint("Symmetric", 1, 3, 25, 3, -1, 1),
    Sketcher.Constraint("Symmetric", 17, 3, 29, 3, -1, 1),
    Sketcher.Constraint("Symmetric", 13, 3, 33, 3, -1, 1),
    Sketcher.Constraint("Symmetric", 9, 3, 37, 3, -1, 1),
    Sketcher.Constraint("Horizontal", 9, 3, 13, 3),
    Sketcher.Constraint("Horizontal", 11, 3, 15, 3),
    Sketcher.Constraint("Horizontal", 13, 3, 17, 3),
    Sketcher.Constraint("Horizontal", 15, 3, 19, 3),
    Sketcher.Constraint("Horizontal", 19, 3, 29, 3),
    Sketcher.Constraint("Horizontal", 17, 3, 31, 3),
    Sketcher.Constraint("Horizontal", 31, 3, 35, 3),
    Sketcher.Constraint("Horizontal", 35, 3, 39, 3),
    Sketcher.Constraint("Vertical", 1, 3, 5, 3),
    Sketcher.Constraint("Vertical", 3, 3, 7, 3),
    Sketcher.Constraint("Vertical", 5, 3, 17, 3),
    Sketcher.Constraint("Vertical", 7, 3, 21, 3),
    Sketcher.Constraint("Vertical", 19, 3, 23, 3),
    Sketcher.Constraint("Vertical", 23, 3, 27, 3),
    Sketcher.Constraint("Radius", 1, 2.0),
    Sketcher.Constraint("DistanceX", 0, 2, 0, 1, 144.0),
    Sketcher.Constraint("DistanceY", 8, 1, 8, 2, 112.0),
    Sketcher.Constraint("DistanceY", 1, 3, -1, 1, 120.0),
    Sketcher.Constraint("DistanceY", 5, 3, -1, 1, 104.0),
    Sketcher.Constraint("DistanceX", 9, 3, -1, 1, 8.0),
    Sketcher.Constraint("DistanceX", 13, 3, -1, 1, 40.0),
])
sketch5.setExpression("Constraints[88]", "Params.sketch5_radius")
sketch5.setExpression("Constraints[89]", "Params.sketch5_width")
sketch5.setExpression("Constraints[90]", "Params.sketch5_height")
pocket4 = body.newObject("PartDesign::Pocket", "Pocket003")
pocket4.Profile = sketch5
pocket4.Type = "ThroughAll"
pocket4.Reversed = True

doc.recompute()
